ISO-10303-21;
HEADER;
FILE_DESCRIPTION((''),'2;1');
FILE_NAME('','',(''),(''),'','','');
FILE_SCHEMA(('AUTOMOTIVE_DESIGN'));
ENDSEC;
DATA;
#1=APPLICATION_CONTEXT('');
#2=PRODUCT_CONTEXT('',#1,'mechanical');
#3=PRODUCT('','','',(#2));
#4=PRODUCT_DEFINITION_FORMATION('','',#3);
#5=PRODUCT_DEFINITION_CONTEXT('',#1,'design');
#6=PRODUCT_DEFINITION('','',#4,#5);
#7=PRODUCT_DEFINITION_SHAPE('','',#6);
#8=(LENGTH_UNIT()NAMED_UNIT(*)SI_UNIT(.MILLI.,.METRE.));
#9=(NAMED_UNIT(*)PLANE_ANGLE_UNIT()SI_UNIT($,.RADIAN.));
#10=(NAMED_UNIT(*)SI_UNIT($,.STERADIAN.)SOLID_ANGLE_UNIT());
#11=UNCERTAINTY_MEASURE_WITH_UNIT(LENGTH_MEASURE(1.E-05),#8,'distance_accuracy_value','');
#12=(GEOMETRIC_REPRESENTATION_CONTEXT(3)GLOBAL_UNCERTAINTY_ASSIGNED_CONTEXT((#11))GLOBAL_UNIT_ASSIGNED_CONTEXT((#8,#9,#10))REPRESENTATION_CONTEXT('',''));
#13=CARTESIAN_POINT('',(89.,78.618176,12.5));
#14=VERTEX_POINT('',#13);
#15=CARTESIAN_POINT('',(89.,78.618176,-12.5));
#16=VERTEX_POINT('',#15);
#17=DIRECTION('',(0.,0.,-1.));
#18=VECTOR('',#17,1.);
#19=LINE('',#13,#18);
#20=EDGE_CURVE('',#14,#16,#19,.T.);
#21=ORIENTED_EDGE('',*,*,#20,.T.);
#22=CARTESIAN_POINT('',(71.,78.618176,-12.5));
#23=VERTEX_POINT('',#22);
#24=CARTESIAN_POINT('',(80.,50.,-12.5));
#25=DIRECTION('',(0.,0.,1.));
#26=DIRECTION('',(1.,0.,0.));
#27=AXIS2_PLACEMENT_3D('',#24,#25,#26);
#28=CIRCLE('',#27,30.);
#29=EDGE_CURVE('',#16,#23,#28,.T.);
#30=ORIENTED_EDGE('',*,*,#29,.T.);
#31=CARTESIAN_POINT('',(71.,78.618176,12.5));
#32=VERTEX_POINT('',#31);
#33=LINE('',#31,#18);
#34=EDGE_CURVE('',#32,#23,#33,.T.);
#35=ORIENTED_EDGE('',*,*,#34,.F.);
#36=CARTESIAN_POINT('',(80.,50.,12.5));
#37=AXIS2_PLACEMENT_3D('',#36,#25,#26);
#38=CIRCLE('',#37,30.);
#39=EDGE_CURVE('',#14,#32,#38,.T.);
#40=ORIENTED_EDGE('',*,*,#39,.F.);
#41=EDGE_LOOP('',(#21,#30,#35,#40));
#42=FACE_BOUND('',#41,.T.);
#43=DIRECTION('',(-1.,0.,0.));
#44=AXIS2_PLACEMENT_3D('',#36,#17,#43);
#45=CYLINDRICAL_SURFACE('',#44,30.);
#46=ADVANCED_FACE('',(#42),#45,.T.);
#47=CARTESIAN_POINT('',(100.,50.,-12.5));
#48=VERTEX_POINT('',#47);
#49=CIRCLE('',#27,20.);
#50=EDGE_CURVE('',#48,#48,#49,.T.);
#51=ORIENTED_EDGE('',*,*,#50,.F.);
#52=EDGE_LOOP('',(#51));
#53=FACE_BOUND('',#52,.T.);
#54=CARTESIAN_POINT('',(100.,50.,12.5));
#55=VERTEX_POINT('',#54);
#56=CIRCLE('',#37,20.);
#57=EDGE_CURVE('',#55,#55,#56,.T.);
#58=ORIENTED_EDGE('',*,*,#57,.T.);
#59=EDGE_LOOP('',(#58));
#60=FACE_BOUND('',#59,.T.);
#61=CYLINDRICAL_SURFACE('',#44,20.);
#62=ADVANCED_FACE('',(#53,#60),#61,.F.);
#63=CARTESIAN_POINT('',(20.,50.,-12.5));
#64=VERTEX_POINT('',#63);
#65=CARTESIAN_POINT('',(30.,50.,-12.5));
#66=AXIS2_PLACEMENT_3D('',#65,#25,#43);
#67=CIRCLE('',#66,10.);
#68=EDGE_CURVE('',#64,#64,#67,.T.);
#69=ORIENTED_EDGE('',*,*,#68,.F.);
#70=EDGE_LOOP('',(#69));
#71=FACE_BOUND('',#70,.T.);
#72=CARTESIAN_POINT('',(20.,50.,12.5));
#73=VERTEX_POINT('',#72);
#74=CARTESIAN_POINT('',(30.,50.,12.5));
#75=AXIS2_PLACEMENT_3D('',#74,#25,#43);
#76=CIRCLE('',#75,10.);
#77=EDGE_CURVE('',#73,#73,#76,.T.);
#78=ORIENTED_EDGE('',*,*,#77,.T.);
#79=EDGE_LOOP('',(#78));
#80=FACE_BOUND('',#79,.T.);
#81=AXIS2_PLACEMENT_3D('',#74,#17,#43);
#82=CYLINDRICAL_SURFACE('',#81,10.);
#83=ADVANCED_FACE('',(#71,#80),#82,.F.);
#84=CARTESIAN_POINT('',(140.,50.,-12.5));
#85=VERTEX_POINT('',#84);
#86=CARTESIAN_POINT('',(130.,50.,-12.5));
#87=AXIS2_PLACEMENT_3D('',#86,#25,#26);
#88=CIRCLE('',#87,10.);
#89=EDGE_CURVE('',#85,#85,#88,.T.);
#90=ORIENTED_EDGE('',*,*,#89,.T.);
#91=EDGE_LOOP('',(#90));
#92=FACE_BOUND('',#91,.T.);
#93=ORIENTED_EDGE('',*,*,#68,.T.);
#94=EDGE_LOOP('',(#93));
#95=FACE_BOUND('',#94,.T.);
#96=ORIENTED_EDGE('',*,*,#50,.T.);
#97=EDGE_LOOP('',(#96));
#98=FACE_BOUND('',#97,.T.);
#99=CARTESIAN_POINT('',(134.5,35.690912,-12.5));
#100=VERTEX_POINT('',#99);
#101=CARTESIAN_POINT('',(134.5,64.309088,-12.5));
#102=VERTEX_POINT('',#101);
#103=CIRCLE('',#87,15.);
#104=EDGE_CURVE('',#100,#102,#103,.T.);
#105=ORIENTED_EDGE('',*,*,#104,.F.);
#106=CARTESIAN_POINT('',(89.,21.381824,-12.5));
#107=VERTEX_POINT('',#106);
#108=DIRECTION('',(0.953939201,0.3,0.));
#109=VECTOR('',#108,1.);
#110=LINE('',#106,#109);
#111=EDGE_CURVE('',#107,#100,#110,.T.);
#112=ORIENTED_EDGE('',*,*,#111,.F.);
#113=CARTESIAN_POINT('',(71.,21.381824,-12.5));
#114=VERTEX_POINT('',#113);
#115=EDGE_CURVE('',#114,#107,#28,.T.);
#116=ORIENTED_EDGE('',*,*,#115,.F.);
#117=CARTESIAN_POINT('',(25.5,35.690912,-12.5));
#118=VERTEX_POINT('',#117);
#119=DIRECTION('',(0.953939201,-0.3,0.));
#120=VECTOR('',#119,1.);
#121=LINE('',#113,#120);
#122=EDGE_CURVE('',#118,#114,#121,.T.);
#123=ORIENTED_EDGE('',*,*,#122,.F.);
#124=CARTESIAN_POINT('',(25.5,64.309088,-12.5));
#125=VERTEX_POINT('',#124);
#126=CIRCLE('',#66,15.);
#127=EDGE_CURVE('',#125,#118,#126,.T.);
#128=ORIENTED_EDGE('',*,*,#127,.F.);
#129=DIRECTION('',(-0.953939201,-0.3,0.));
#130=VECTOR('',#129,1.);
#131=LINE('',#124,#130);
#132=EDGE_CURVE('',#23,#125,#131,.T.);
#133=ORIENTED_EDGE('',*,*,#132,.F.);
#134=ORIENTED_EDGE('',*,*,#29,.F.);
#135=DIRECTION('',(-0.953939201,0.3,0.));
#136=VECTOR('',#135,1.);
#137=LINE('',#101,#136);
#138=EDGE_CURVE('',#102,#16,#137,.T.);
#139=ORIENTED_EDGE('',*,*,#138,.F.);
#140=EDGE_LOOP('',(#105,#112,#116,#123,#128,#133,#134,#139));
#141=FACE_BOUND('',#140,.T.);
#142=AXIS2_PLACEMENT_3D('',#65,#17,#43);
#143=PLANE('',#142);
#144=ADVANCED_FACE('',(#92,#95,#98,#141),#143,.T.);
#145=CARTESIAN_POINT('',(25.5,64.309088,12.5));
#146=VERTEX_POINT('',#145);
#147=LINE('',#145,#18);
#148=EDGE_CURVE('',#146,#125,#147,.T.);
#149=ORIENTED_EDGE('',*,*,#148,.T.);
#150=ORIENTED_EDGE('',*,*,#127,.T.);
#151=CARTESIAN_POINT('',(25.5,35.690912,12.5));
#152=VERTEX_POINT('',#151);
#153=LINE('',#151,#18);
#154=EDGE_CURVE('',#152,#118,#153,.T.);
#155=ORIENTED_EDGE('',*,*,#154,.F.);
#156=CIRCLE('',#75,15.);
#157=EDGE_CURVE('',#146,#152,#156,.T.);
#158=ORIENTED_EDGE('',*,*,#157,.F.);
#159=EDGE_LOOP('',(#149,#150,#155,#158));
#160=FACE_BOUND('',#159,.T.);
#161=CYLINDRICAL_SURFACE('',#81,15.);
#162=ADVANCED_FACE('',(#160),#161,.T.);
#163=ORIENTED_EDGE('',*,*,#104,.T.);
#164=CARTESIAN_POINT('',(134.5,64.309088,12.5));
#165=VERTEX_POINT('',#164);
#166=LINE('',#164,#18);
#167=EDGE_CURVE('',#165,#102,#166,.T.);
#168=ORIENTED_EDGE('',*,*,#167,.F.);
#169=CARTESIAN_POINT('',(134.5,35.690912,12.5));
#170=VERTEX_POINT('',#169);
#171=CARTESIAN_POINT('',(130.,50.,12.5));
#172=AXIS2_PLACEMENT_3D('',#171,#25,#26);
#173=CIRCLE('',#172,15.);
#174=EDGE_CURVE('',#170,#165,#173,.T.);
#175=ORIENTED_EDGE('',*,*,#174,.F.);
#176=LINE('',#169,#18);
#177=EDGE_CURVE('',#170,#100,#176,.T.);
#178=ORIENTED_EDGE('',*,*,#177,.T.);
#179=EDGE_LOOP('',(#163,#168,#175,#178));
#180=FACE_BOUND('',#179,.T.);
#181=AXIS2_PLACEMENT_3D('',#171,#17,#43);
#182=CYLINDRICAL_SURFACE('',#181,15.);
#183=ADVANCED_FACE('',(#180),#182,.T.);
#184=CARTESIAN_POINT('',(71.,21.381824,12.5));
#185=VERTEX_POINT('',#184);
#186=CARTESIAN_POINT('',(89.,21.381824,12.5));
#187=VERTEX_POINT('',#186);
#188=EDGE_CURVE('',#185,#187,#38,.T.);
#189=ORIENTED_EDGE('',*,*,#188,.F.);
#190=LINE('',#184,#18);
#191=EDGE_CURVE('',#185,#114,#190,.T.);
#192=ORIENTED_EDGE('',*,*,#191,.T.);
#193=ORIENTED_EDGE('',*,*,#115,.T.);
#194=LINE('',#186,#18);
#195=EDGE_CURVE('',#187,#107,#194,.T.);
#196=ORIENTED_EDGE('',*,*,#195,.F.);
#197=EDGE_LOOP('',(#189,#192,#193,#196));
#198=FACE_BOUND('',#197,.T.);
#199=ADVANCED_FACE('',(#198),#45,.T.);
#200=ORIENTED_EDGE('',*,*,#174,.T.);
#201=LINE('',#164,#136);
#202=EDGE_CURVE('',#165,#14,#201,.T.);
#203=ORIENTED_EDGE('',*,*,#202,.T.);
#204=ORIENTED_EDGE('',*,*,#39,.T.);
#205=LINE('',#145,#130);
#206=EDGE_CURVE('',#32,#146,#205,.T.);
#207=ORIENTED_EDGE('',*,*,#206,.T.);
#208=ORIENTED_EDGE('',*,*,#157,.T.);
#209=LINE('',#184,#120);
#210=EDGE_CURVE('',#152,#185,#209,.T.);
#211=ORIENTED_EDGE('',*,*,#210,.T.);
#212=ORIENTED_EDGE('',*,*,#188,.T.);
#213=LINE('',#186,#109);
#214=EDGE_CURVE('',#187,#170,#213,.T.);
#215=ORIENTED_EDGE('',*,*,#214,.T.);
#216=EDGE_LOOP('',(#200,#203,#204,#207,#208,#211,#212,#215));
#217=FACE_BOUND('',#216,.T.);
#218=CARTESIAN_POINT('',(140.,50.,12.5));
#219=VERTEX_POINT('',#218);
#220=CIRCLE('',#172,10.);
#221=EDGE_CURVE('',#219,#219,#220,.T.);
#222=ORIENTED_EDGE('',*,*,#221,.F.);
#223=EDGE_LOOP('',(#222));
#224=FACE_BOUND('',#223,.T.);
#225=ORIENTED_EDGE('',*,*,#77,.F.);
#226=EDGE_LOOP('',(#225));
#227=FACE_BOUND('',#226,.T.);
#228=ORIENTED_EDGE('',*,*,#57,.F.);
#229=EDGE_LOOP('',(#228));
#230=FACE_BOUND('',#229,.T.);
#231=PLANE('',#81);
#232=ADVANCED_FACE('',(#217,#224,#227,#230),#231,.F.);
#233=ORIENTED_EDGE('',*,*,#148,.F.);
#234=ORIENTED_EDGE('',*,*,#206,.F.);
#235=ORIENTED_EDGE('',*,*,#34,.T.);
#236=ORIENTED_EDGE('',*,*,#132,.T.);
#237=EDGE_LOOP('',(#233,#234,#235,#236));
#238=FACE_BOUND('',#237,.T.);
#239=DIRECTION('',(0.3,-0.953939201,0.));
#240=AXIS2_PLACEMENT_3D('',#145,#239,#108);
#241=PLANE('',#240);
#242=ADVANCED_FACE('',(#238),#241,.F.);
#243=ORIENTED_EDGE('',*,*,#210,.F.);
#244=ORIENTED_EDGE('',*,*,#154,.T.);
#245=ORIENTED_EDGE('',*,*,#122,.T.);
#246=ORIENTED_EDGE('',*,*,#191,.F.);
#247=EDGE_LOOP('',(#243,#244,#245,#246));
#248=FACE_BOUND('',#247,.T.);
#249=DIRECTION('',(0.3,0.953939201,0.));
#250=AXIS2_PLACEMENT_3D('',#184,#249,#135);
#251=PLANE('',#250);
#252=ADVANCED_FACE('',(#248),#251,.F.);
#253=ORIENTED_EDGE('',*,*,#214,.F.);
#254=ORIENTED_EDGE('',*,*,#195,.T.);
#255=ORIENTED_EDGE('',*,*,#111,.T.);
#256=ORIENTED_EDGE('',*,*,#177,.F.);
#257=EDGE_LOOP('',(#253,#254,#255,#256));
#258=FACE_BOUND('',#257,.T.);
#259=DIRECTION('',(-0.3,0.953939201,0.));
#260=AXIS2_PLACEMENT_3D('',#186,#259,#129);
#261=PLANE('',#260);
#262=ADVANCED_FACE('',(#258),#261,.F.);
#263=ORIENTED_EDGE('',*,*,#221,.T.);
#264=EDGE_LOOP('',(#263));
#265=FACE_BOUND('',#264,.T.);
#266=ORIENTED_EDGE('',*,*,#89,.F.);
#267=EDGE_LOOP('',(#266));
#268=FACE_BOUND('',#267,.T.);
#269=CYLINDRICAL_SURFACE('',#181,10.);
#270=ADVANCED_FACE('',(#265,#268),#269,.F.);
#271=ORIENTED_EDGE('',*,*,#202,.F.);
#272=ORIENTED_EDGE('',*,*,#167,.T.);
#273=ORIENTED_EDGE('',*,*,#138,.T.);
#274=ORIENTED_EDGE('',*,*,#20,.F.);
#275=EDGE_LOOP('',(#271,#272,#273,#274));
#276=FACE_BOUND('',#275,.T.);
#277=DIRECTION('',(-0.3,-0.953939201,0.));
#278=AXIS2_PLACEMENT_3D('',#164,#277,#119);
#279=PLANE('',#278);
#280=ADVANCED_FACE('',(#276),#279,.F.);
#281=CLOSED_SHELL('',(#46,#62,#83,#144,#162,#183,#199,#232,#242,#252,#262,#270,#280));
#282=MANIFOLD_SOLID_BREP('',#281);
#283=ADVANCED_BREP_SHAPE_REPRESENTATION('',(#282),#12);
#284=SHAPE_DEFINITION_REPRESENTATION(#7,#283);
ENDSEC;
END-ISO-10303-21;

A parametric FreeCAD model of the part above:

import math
import FreeCAD as App
import Part
import Sketcher
from FreeCAD import Vector

doc = App.newDocument("Part")
body = doc.addObject("PartDesign::Body", "Body")

sketch1 = doc.addObject("Sketcher::SketchObject", "Sketch")
body.addObject(sketch1)
sketch1.AttachmentSupport = (doc.XY_Plane, [""])
sketch1.MapMode = "FlatFace"
sketch1.addGeometry([
    Part.LineSegment(Vector(134.5, 64.309088, 0), Vector(89, 78.618176, 0)),
    Part.ArcOfCircle(Part.Circle(Vector(80, 50, 0), Vector(0, 0, 1), 30), math.radians(72.542397), math.radians(107.457603)),
    Part.LineSegment(Vector(71, 78.618176, 0), Vector(25.5, 64.309088, 0)),
    Part.ArcOfCircle(Part.Circle(Vector(30, 50, 0), Vector(0, 0, 1), 15), math.radians(107.457603), math.radians(252.542397)),
    Part.LineSegment(Vector(25.5, 35.690912, 0), Vector(71, 21.381824, 0)),
    Part.ArcOfCircle(Part.Circle(Vector(80, 50, 0), Vector(0, 0, 1), 30), math.radians(-107.457603), math.radians(-72.542397)),
    Part.LineSegment(Vector(89, 21.381824, 0), Vector(134.5, 35.690912, 0)),
    Part.ArcOfCircle(Part.Circle(Vector(130, 50, 0), Vector(0, 0, 1), 15), math.radians(-72.542397), math.radians(72.542397)),
    Part.Circle(Vector(30, 50, 0), Vector(0, 0, 1), 10),
    Part.Circle(Vector(80, 50, 0), Vector(0, 0, 1), 20),
    Part.Circle(Vector(130, 50, 0), Vector(0, 0, 1), 10),
], False)
sketch1.addConstraint([
    Sketcher.Constraint("Tangent", 0, 2, 1, 1),
    Sketcher.Constraint("Tangent", 1, 2, 2, 1),
    Sketcher.Constraint("Tangent", 2, 2, 3, 1),
    Sketcher.Constraint("Tangent", 3, 2, 4, 1),
    Sketcher.Constraint("Tangent", 4, 2, 5, 1),
    Sketcher.Constraint("Tangent", 5, 2, 6, 1),
    Sketcher.Constraint("Tangent", 6, 2, 7, 1),
    Sketcher.Constraint("Tangent", 7, 2, 0, 1),
    Sketcher.Constraint("Coincident", 5, 3, 1, 3),
    Sketcher.Constraint("Coincident", 8, 3, 3, 3),
    Sketcher.Constraint("Coincident", 9, 3, 1, 3),
    Sketcher.Constraint("Coincident", 10, 3, 7, 3),
    Sketcher.Constraint("Equal", 1, 5),
    Sketcher.Constraint("Equal", 3, 7),
    Sketcher.Constraint("Equal", 8, 10),
    Sketcher.Constraint("Parallel", 0, 4),
    Sketcher.Constraint("Parallel", 2, 6),
    Sketcher.Constraint("Horizontal", 1, 3, 3, 3),
    Sketcher.Constraint("Diameter", 8, 20.0),
    Sketcher.Constraint("Diameter", 9, 40.0),
    Sketcher.Constraint("Radius", 1, 30.0),
    Sketcher.Constraint("Radius", 3, 15.0),
    Sketcher.Constraint("DistanceX", -1, 1, 1, 3, 80.0),
    Sketcher.Constraint("DistanceY", -1, 1, 1, 3, 50.0),
    Sketcher.Constraint("DistanceX", -1, 1, 3, 3, 30.0),
])
pad1 = doc.addObject("PartDesign::Pad", "Pad")
body.addObject(pad1)
pad1.Profile = sketch1
pad1.Length = 25
pad1.Midplane = True

doc.recompute()
